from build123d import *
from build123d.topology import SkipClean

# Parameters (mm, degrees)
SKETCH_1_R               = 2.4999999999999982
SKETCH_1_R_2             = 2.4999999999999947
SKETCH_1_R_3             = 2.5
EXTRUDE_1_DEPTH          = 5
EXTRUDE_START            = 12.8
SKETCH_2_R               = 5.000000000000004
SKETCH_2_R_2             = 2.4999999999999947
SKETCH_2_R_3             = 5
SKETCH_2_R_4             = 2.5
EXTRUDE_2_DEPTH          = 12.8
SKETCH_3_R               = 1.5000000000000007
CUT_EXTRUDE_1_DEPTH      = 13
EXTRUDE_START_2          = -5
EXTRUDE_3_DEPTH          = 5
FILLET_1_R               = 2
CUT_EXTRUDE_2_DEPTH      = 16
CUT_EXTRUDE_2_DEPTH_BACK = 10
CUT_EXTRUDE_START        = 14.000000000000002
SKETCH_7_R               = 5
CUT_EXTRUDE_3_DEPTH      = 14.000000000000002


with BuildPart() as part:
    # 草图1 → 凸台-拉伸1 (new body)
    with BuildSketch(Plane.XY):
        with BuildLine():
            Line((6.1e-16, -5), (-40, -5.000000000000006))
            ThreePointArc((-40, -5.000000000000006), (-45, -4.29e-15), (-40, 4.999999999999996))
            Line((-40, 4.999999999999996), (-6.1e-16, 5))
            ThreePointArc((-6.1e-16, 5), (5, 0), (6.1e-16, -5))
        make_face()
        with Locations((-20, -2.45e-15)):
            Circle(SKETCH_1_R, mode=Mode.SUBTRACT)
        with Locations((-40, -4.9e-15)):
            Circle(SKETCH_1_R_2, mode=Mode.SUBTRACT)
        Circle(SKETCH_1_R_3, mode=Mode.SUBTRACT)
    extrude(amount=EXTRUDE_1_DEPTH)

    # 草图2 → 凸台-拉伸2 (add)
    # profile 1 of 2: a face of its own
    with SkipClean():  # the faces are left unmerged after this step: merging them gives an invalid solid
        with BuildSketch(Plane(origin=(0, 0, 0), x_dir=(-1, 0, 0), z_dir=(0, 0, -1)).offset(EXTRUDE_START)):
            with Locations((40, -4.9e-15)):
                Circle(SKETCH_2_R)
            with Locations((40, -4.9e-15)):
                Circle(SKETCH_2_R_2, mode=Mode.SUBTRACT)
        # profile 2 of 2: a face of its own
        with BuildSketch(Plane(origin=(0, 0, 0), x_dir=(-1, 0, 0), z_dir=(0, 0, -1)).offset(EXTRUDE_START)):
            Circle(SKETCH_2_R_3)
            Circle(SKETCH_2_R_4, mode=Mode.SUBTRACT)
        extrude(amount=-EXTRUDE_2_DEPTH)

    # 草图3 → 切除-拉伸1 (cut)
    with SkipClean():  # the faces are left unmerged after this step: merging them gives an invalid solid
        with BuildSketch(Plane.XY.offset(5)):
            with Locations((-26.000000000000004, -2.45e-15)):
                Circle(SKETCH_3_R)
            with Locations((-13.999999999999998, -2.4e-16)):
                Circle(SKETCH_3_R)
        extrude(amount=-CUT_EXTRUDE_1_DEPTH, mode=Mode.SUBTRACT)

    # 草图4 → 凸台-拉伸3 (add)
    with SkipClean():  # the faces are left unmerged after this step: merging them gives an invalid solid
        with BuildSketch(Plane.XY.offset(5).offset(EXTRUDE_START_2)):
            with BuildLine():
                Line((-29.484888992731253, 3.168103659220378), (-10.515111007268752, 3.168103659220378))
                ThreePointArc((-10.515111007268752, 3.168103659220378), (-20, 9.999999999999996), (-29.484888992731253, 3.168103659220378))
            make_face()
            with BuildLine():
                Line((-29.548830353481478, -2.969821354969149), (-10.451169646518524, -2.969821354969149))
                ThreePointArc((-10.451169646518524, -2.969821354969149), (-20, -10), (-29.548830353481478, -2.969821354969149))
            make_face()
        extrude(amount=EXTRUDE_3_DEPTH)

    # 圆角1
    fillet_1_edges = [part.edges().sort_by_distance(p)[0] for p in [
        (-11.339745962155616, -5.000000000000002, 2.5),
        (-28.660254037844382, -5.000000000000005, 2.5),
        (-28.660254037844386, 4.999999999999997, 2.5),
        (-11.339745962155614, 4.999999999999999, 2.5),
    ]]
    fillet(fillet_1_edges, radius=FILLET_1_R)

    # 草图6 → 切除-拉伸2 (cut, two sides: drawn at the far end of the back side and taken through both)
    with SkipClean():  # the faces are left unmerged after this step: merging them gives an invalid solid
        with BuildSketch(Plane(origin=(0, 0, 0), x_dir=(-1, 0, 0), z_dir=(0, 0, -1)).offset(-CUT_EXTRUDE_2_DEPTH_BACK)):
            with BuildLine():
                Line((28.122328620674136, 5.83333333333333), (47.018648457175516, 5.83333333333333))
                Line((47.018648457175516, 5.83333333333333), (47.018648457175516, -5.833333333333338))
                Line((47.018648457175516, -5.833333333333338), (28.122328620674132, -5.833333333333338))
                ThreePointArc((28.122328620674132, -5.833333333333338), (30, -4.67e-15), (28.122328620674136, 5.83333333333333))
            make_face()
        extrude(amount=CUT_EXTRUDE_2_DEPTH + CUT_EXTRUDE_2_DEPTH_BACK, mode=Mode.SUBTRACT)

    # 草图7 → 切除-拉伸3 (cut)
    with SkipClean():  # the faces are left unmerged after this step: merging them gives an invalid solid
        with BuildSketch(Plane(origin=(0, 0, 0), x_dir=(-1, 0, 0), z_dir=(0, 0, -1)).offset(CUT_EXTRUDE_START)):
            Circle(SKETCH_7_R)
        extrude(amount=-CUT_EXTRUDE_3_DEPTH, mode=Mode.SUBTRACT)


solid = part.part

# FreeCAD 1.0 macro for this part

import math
import FreeCAD as App
import Part
import Sketcher
from FreeCAD import Vector


def edges_at(feature, points):
    """Names of the edges that pass closest to the given points."""
    edges = feature.Shape.Edges
    near = lambda p: min(range(len(edges)), key=lambda i: edges[i].distToShape(Part.Vertex(*p))[0])
    return sorted({f"Edge{near(p) + 1}" for p in points})

doc = App.newDocument("Part")
body = doc.addObject("PartDesign::Body", "Body")

sketch1 = body.newObject("Sketcher::SketchObject", "Sketch")
sketch1.AttachmentSupport = (doc.getObject("XY_Plane"), [""])
sketch1.MapMode = "FlatFace"
sketch1.addGeometry([
    Part.LineSegment(Vector(-40, -5, 0), Vector(0, -5, 0)),
    Part.ArcOfCircle(Part.Circle(Vector(0, 0, 0), Vector(0, 0, 1), 5), math.radians(-90), math.radians(90)),
    Part.LineSegment(Vector(0, 5, 0), Vector(-40, 5, 0)),
    Part.ArcOfCircle(Part.Circle(Vector(-40, 0, 0), Vector(0, 0, 1), 5), math.radians(90), math.radians(270)),
    Part.Circle(Vector(-20, 0, 0), Vector(0, 0, 1), 2.5),
    Part.Circle(Vector(-40, 0, 0), Vector(0, 0, 1), 2.5),
    Part.Circle(Vector(0, 0, 0), Vector(0, 0, 1), 2.5),
], False)
sketch1.addConstraint([
    Sketcher.Constraint("Tangent", 0, 2, 1, 1),
    Sketcher.Constraint("Tangent", 1, 2, 2, 1),
    Sketcher.Constraint("Tangent", 2, 2, 3, 1),
    Sketcher.Constraint("Tangent", 3, 2, 0, 1),
    Sketcher.Constraint("Horizontal", 0),
    Sketcher.Constraint("Horizontal", 2),
    Sketcher.Constraint("Coincident", 1, 3, -1, 1),
    Sketcher.Constraint("Coincident", 6, 3, -1, 1),
    Sketcher.Constraint("Coincident", 5, 3, 3, 3),
    Sketcher.Constraint("Equal", 4, 5),
    Sketcher.Constraint("Equal", 5, 6),
    Sketcher.Constraint("PointOnObject", 4, 3, -1),
    Sketcher.Constraint("Diameter", 4, 5.0),
    Sketcher.Constraint("Radius", 1, 5.0),
    Sketcher.Constraint("DistanceX", 0, 1, 0, 2, 40.0),
    Sketcher.Constraint("DistanceX", 4, 3, -1, 1, 20.0),
])
pad1 = body.newObject("PartDesign::Pad", "Pad")
pad1.Profile = sketch1
pad1.Length = 5

sketch2 = body.newObject("Sketcher::SketchObject", "Sketch001")
sketch2.AttachmentSupport = (doc.getObject("XY_Plane"), [""])
sketch2.MapMode = "FlatFace"
sketch2.AttachmentOffset = App.Placement(Vector(0, 0, -12.8), App.Rotation())
sketch2.addGeometry([
    Part.Circle(Vector(-40, 0, 0), Vector(0, 0, 1), 5),
    Part.Circle(Vector(-40, 0, 0), Vector(0, 0, 1), 2.5),
    Part.Circle(Vector(0, 0, 0), Vector(0, 0, 1), 5),
    Part.Circle(Vector(0, 0, 0), Vector(0, 0, 1), 2.5),
], False)
sketch2.addConstraint([
    Sketcher.Constraint("Coincident", 2, 3, -1, 1),
    Sketcher.Constraint("Coincident", 3, 3, -1, 1),
    Sketcher.Constraint("Coincident", 1, 3, 0, 3),
    Sketcher.Constraint("Equal", 0, 2),
    Sketcher.Constraint("Equal", 1, 3),
    Sketcher.Constraint("PointOnObject", 0, 3, -1),
    Sketcher.Constraint("Diameter", 0, 10.0),
    Sketcher.Constraint("Diameter", 1, 5.0),
    Sketcher.Constraint("DistanceX", 0, 3, -1, 1, 40.0),
])
pad2 = body.newObject("PartDesign::Pad", "Pad001")
pad2.Profile = sketch2
pad2.Length = 12.8

sketch3 = body.newObject("Sketcher::SketchObject", "Sketch002")
sketch3.AttachmentSupport = (doc.getObject("XY_Plane"), [""])
sketch3.MapMode = "FlatFace"
sketch3.AttachmentOffset = App.Placement(Vector(0, 0, 5), App.Rotation())
sketch3.addGeometry([
    Part.Circle(Vector(-26, 0, 0), Vector(0, 0, 1), 1.5),
    Part.Circle(Vector(-14, 0, 0), Vector(0, 0, 1), 1.5),
], False)
sketch3.addConstraint([
    Sketcher.Constraint("Equal", 0, 1),
    Sketcher.Constraint("PointOnObject", 0, 3, -1),
    Sketcher.Constraint("PointOnObject", 1, 3, -1),
    Sketcher.Constraint("Diameter", 0, 3.0),
    Sketcher.Constraint("DistanceX", 0, 3, -1, 1, 26.0),
    Sketcher.Constraint("DistanceX", 1, 3, -1, 1, 14.0),
])
pocket1 = body.newObject("PartDesign::Pocket", "Pocket")
pocket1.Profile = sketch3
pocket1.Length = 13

sketch4 = body.newObject("Sketcher::SketchObject", "Sketch003")
sketch4.AttachmentSupport = (doc.getObject("XY_Plane"), [""])
sketch4.MapMode = "FlatFace"
sketch4.addGeometry([
    Part.LineSegment(Vector(-29, 3, 0), Vector(-11, 3, 0)),
    Part.ArcOfCircle(Part.Circle(Vector(-20, 0, 0), Vector(0, 0, 1), 10), math.radians(18), math.radians(162)),
    Part.LineSegment(Vector(-10, -3, 0), Vector(-30, -3, 0)),
    Part.ArcOfCircle(Part.Circle(Vector(-20, 0, 0), Vector(0, 0, 1), 10), math.radians(-163), math.radians(-17)),
], False)
sketch4.addConstraint([
    Sketcher.Constraint("Coincident", 0, 1, 1, 2),
    Sketcher.Constraint("Coincident", 1, 1, 0, 2),
    Sketcher.Constraint("Coincident", 2, 1, 3, 2),
    Sketcher.Constraint("Coincident", 3, 1, 2, 2),
    Sketcher.Constraint("Horizontal", 0),
    Sketcher.Constraint("Horizontal", 2),
    Sketcher.Constraint("Coincident", 3, 3, 1, 3),
    Sketcher.Constraint("Equal", 1, 3),
    Sketcher.Constraint("PointOnObject", 1, 3, -1),
    Sketcher.Constraint("Radius", 1, 10.0),
    Sketcher.Constraint("DistanceX", 1, 3, -1, 1, 20.0),
    Sketcher.Constraint("DistanceX", 2, 2, 2, 1, 19.097661),
    Sketcher.Constraint("DistanceX", 0, 1, 0, 2, 18.969778),
])
pad3 = body.newObject("PartDesign::Pad", "Pad002")
pad3.Profile = sketch4
pad3.Length = 5
doc.recompute()

fillet = body.newObject("PartDesign::Fillet", "Fillet")
fillet.Base = (pad3, edges_at(pad3, [
    (-11.34, -5, 2.5),
    (-28.66, -5, 2.5),
    (-28.66, 5, 2.5),
    (-11.34, 5, 2.5),
]))
fillet.Radius = 2

sketch5 = body.newObject("Sketcher::SketchObject", "Sketch004")
sketch5.AttachmentSupport = (doc.getObject("XY_Plane"), [""])
sketch5.MapMode = "FlatFace"
sketch5.addGeometry([
    Part.LineSegment(Vector(-47, 6, 0), Vector(-28, 6, 0)),
    Part.ArcOfCircle(Part.Circle(Vector(-20, 0, 0), Vector(0, 0, 1), 10), math.radians(144), math.radians(216)),
    Part.LineSegment(Vector(-28, -6, 0), Vector(-47, -6, 0)),
    Part.LineSegment(Vector(-47, -6, 0), Vector(-47, 6, 0)),
], False)
sketch5.addConstraint([
    Sketcher.Constraint("Coincident", 0, 2, 1, 1),
    Sketcher.Constraint("Coincident", 1, 2, 2, 1),
    Sketcher.Constraint("Coincident", 2, 2, 3, 1),
    Sketcher.Constraint("Coincident", 3, 2, 0, 1),
    Sketcher.Constraint("Horizontal", 0),
    Sketcher.Constraint("Horizontal", 2),
    Sketcher.Constraint("Vertical", 3),
    Sketcher.Constraint("Symmetric", 0, 2, 1, 2, -1),
    Sketcher.Constraint("Radius", 1, 10.0),
    Sketcher.Constraint("DistanceX", 1, 3, -1, 1, 20.0),
    Sketcher.Constraint("DistanceX", 0, 1, 0, 2, 18.89632),
    Sketcher.Constraint("DistanceY", 3, 1, 3, 2, 11.666667),
])
pocket2 = body.newObject("PartDesign::Pocket", "Pocket001")
pocket2.Profile = sketch5
pocket2.Type = "ThroughAll"
pocket2.Midplane = True

sketch6 = body.newObject("Sketcher::SketchObject", "Sketch005")
sketch6.AttachmentSupport = (doc.getObject("XY_Plane"), [""])
sketch6.MapMode = "FlatFace"
sketch6.AttachmentOffset = App.Placement(Vector(0, 0, -14), App.Rotation())
sketch6.addGeometry(Part.Circle(Vector(0, 0, 0), Vector(0, 0, 1), 5), False)
sketch6.addConstraint([
    Sketcher.Constraint("Coincident", 0, 3, -1, 1),
    Sketcher.Constraint("Diameter", 0, 10.0),
])
pocket3 = body.newObject("PartDesign::Pocket", "Pocket002")
pocket3.Profile = sketch6
pocket3.Length = 14
pocket3.Reversed = True

doc.recompute()
